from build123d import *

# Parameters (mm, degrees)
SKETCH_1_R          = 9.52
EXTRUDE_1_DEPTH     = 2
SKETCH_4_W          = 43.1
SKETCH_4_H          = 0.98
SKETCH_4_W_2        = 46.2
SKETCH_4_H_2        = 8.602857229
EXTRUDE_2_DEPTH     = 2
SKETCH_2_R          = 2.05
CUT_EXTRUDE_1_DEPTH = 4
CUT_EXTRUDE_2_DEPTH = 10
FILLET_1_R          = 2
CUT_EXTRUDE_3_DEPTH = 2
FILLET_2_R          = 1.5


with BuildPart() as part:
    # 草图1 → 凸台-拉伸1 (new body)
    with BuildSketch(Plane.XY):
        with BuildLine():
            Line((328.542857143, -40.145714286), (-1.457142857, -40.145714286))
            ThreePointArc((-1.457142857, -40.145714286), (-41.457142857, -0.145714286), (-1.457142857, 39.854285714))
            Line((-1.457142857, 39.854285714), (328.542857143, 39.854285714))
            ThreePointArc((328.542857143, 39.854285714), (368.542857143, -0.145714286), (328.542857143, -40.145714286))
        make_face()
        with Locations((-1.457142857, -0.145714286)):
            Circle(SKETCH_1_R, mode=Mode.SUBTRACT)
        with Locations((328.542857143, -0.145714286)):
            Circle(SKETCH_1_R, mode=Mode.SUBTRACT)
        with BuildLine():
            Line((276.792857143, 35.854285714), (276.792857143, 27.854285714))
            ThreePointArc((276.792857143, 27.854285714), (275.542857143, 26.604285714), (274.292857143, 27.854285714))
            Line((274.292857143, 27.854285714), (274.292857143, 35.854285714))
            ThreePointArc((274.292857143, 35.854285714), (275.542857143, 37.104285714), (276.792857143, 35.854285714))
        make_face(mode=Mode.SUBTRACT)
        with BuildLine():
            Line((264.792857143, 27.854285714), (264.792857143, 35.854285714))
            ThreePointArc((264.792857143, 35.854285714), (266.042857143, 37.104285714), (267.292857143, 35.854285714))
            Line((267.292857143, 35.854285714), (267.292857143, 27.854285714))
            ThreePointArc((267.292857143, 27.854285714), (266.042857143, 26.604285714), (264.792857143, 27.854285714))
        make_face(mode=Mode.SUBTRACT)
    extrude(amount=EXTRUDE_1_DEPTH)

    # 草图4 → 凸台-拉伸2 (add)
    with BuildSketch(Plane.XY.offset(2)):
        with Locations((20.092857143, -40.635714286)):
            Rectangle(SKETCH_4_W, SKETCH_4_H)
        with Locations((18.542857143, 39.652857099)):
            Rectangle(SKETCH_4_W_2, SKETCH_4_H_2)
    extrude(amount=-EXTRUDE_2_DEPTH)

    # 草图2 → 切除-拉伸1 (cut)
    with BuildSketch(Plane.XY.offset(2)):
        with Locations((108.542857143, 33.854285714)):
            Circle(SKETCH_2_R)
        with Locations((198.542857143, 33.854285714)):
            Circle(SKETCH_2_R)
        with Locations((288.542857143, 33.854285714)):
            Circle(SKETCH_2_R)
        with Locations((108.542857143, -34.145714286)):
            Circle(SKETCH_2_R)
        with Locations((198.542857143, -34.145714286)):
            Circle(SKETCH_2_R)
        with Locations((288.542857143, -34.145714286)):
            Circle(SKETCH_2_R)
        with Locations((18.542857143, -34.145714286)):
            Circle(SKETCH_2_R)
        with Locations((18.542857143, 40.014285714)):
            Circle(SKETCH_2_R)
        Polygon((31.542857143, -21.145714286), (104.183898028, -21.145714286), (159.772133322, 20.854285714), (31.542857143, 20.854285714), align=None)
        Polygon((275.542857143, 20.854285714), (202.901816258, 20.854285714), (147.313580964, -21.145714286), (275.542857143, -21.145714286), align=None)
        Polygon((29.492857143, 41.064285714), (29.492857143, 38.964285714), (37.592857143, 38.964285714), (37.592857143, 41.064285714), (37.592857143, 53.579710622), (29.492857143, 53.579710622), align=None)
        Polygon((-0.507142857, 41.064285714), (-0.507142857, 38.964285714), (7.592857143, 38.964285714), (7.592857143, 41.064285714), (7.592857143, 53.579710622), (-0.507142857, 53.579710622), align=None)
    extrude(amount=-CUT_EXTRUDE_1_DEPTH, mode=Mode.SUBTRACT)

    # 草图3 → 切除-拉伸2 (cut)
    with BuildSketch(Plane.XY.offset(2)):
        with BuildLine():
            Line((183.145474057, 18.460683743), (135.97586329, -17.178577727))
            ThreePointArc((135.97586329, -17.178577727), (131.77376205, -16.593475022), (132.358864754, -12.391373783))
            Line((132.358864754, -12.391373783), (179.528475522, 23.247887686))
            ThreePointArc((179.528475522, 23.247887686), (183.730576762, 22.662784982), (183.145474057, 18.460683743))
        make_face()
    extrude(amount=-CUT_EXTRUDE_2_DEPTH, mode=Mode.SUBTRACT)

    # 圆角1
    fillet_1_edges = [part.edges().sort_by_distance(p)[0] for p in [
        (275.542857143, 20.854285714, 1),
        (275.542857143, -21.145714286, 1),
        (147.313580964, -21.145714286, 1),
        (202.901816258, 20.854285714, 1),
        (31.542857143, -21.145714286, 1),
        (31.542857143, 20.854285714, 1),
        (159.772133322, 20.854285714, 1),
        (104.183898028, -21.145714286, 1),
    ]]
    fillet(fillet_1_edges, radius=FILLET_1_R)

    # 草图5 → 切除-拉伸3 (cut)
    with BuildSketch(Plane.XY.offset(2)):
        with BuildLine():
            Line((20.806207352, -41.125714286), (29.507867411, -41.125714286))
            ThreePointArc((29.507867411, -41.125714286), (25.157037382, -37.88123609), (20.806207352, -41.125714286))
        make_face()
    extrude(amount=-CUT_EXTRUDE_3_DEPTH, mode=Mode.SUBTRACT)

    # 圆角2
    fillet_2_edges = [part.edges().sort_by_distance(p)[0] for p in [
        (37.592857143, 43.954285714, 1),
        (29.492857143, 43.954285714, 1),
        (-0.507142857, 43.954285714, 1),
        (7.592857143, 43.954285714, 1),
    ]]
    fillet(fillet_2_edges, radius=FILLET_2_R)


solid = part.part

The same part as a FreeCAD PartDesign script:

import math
import FreeCAD as App
import Part
import Sketcher
Q = App.Units.Quantity


def edges_at(feature, points):
    """Names of the edges that pass closest to the given points."""
    edges = feature.Shape.Edges
    near = lambda p: min(range(len(edges)), key=lambda i: edges[i].distToShape(Part.Vertex(*p))[0])
    return sorted({f"Edge{near(p) + 1}" for p in points})

doc = App.newDocument("Part")
body = doc.addObject("PartDesign::Body", "Body")

# Sketch on XY plane
sketch1 = body.newObject("Sketcher::SketchObject", "Sketch")
sketch1.AttachmentSupport = (doc.getObject("XY_Plane"), [""])
sketch1.MapMode = "FlatFace"
sketch1.addGeometry(Part.LineSegment(App.Vector(-1.5, -40.1, 0), App.Vector(328.5, -40.1, 0)), False)
sketch1.addGeometry(Part.ArcOfCircle(Part.Circle(App.Vector(328.5, -0.1, 0), App.Vector(0, 0, 1), 40), math.radians(-90), math.radians(90)), False)
sketch1.addGeometry(Part.LineSegment(App.Vector(328.5, 39.9, 0), App.Vector(-1.5, 39.9, 0)), False)
sketch1.addGeometry(Part.ArcOfCircle(Part.Circle(App.Vector(-1.5, -0.1, 0), App.Vector(0, 0, 1), 40), math.radians(90), math.radians(270)), False)
sketch1.addGeometry(Part.Circle(App.Vector(328.5, -0.1, 0), App.Vector(0, 0, 1), 9.5), False)
sketch1.addGeometry(Part.Circle(App.Vector(-1.5, -0.1, 0), App.Vector(0, 0, 1), 9.5), False)
sketch1.addGeometry(Part.LineSegment(App.Vector(276.8, 35.9, 0), App.Vector(276.8, 27.9, 0)), False)
sketch1.addGeometry(Part.ArcOfCircle(Part.Circle(App.Vector(275.5, 27.9, 0), App.Vector(0, 0, 1), 1.2), math.radians(180), math.radians(360)), False)
sketch1.addGeometry(Part.LineSegment(App.Vector(274.3, 27.9, 0), App.Vector(274.3, 35.9, 0)), False)
sketch1.addGeometry(Part.ArcOfCircle(Part.Circle(App.Vector(275.5, 35.9, 0), App.Vector(0, 0, 1), 1.2), math.radians(0), math.radians(180)), False)
sketch1.addGeometry(Part.LineSegment(App.Vector(264.8, 27.9, 0), App.Vector(264.8, 35.9, 0)), False)
sketch1.addGeometry(Part.ArcOfCircle(Part.Circle(App.Vector(266, 35.9, 0), App.Vector(0, 0, 1), 1.2), math.radians(0), math.radians(180)), False)
sketch1.addGeometry(Part.LineSegment(App.Vector(267.3, 35.9, 0), App.Vector(267.3, 27.9, 0)), False)
sketch1.addGeometry(Part.ArcOfCircle(Part.Circle(App.Vector(266, 27.9, 0), App.Vector(0, 0, 1), 1.2), math.radians(180), math.radians(360)), False)
sketch1.addConstraint(Sketcher.Constraint("Tangent", 0, 2, 1, 1))
sketch1.addConstraint(Sketcher.Constraint("Tangent", 1, 2, 2, 1))
sketch1.addConstraint(Sketcher.Constraint("Tangent", 2, 2, 3, 1))
sketch1.addConstraint(Sketcher.Constraint("Tangent", 3, 2, 0, 1))
sketch1.addConstraint(Sketcher.Constraint("Tangent", 6, 2, 7, 2))
sketch1.addConstraint(Sketcher.Constraint("Tangent", 7, 1, 8, 1))
sketch1.addConstraint(Sketcher.Constraint("Tangent", 8, 2, 9, 2))
sketch1.addConstraint(Sketcher.Constraint("Tangent", 9, 1, 6, 1))
sketch1.addConstraint(Sketcher.Constraint("Tangent", 10, 2, 11, 2))
sketch1.addConstraint(Sketcher.Constraint("Tangent", 11, 1, 12, 1))
sketch1.addConstraint(Sketcher.Constraint("Tangent", 12, 2, 13, 2))
sketch1.addConstraint(Sketcher.Constraint("Tangent", 13, 1, 10, 1))
sketch1.addConstraint(Sketcher.Constraint("Horizontal", 0))
sketch1.addConstraint(Sketcher.Constraint("Horizontal", 2))
sketch1.addConstraint(Sketcher.Constraint("Vertical", 6))
sketch1.addConstraint(Sketcher.Constraint("Vertical", 8))
sketch1.addConstraint(Sketcher.Constraint("Vertical", 10))
sketch1.addConstraint(Sketcher.Constraint("Vertical", 12))
sketch1.addConstraint(Sketcher.Constraint("Coincident", 4, 3, 1, 3))
sketch1.addConstraint(Sketcher.Constraint("Coincident", 5, 3, 3, 3))
sketch1.addConstraint(Sketcher.Constraint("Equal", 4, 5))
sketch1.addConstraint(Sketcher.Constraint("Equal", 9, 11))
sketch1.addConstraint(Sketcher.Constraint("Horizontal", 9, 3, 11, 3))
sketch1.addConstraint(Sketcher.Constraint("Horizontal", 7, 3, 13, 3))
sketch1.addConstraint(Sketcher.Constraint("Radius", 1, Q("40 mm")))
sketch1.addConstraint(Sketcher.Constraint("Diameter", 4, Q("19.04 mm")))
sketch1.addConstraint(Sketcher.Constraint("DistanceX", 0, 1, 0, 2, Q("330 mm")))
sketch1.addConstraint(Sketcher.Constraint("DistanceY", 6, 2, 6, 1, Q("8 mm")))
sketch1.addConstraint(Sketcher.Constraint("Radius", 7, Q("1.25 mm")))
sketch1.addConstraint(Sketcher.Constraint("DistanceX", 7, 3, 1, 3, Q("53 mm")))
sketch1.addConstraint(Sketcher.Constraint("DistanceY", 1, 3, 7, 3, Q("28 mm")))
sketch1.addConstraint(Sketcher.Constraint("DistanceX", 10, 2, 9, 1, Q("12 mm")))
sketch1.addConstraint(Sketcher.Constraint("DistanceX", -1, 1, 1, 3, Q("328.542857 mm")))
sketch1.addConstraint(Sketcher.Constraint("DistanceY", 1, 3, -1, 1, Q("0.145714 mm")))
pad1 = body.newObject("PartDesign::Pad", "Pad")
pad1.Profile = sketch1
pad1.Length = 2

# Sketch on XY plane
sketch2 = body.newObject("Sketcher::SketchObject", "Sketch001")
sketch2.AttachmentSupport = (doc.getObject("XY_Plane"), [""])
sketch2.MapMode = "FlatFace"
sketch2.AttachmentOffset = App.Placement(App.Vector(0, 0, 2), App.Rotation())
sketch2.addGeometry(Part.LineSegment(App.Vector(-1.5, -40.1, 0), App.Vector(-1.5, -41.1, 0)), False)
sketch2.addGeometry(Part.LineSegment(App.Vector(-1.5, -41.1, 0), App.Vector(41.6, -41.1, 0)), False)
sketch2.addGeometry(Part.LineSegment(App.Vector(41.6, -41.1, 0), App.Vector(41.6, -40.1, 0)), False)
sketch2.addGeometry(Part.LineSegment(App.Vector(41.6, -40.1, 0), App.Vector(-1.5, -40.1, 0)), False)
sketch2.addGeometry(Part.LineSegment(App.Vector(-4.6, 44, 0), App.Vector(-4.6, 35.4, 0)), False)
sketch2.addGeometry(Part.LineSegment(App.Vector(-4.6, 35.4, 0), App.Vector(41.6, 35.4, 0)), False)
sketch2.addGeometry(Part.LineSegment(App.Vector(41.6, 35.4, 0), App.Vector(41.6, 44, 0)), False)
sketch2.addGeometry(Part.LineSegment(App.Vector(41.6, 44, 0), App.Vector(-4.6, 44, 0)), False)
sketch2.addConstraint(Sketcher.Constraint("Coincident", 0, 2, 1, 1))
sketch2.addConstraint(Sketcher.Constraint("Coincident", 1, 2, 2, 1))
sketch2.addConstraint(Sketcher.Constraint("Coincident", 2, 2, 3, 1))
sketch2.addConstraint(Sketcher.Constraint("Coincident", 3, 2, 0, 1))
sketch2.addConstraint(Sketcher.Constraint("Coincident", 4, 2, 5, 1))
sketch2.addConstraint(Sketcher.Constraint("Coincident", 5, 2, 6, 1))
sketch2.addConstraint(Sketcher.Constraint("Coincident", 6, 2, 7, 1))
sketch2.addConstraint(Sketcher.Constraint("Coincident", 7, 2, 4, 1))
sketch2.addConstraint(Sketcher.Constraint("Vertical", 0))
sketch2.addConstraint(Sketcher.Constraint("Horizontal", 1))
sketch2.addConstraint(Sketcher.Constraint("Vertical", 2))
sketch2.addConstraint(Sketcher.Constraint("Horizontal", 3))
sketch2.addConstraint(Sketcher.Constraint("Vertical", 4))
sketch2.addConstraint(Sketcher.Constraint("Horizontal", 5))
sketch2.addConstraint(Sketcher.Constraint("Vertical", 6))
sketch2.addConstraint(Sketcher.Constraint("Horizontal", 7))
sketch2.addConstraint(Sketcher.Constraint("Vertical", 2, 2, 5, 2))
sketch2.addConstraint(Sketcher.Constraint("DistanceX", 1, 1, 1, 2, Q("43.1 mm")))
sketch2.addConstraint(Sketcher.Constraint("DistanceX", 5, 1, 5, 2, Q("46.2 mm")))
sketch2.addConstraint(Sketcher.Constraint("DistanceY", 0, 2, 0, 1, Q("0.98 mm")))
sketch2.addConstraint(Sketcher.Constraint("DistanceY", 2, 2, 6, 2, Q("84.1 mm")))
sketch2.addConstraint(Sketcher.Constraint("DistanceY", 4, 2, 4, 1, Q("8.602857 mm")))
sketch2.addConstraint(Sketcher.Constraint("DistanceY", -1, 1, 4, 2, Q("35.351428 mm")))
sketch2.addConstraint(Sketcher.Constraint("DistanceX", 0, 2, -1, 1, Q("1.457143 mm")))
pad2 = body.newObject("PartDesign::Pad", "Pad001")
pad2.Profile = sketch2
pad2.Length = 2
pad2.Reversed = True

# Sketch on XY plane
sketch3 = body.newObject("Sketcher::SketchObject", "Sketch002")
sketch3.AttachmentSupport = (doc.getObject("XY_Plane"), [""])
sketch3.MapMode = "FlatFace"
sketch3.AttachmentOffset = App.Placement(App.Vector(0, 0, 2), App.Rotation())
sketch3.addGeometry(Part.Circle(App.Vector(108.5, 33.9, 0), App.Vector(0, 0, 1), 2), False)
sketch3.addGeometry(Part.Circle(App.Vector(198.5, 33.9, 0), App.Vector(0, 0, 1), 2), False)
sketch3.addGeometry(Part.Circle(App.Vector(288.5, 33.9, 0), App.Vector(0, 0, 1), 2), False)
sketch3.addGeometry(Part.Circle(App.Vector(108.5, -34.1, 0), App.Vector(0, 0, 1), 2), False)
sketch3.addGeometry(Part.Circle(App.Vector(198.5, -34.1, 0), App.Vector(0, 0, 1), 2), False)
sketch3.addGeometry(Part.Circle(App.Vector(288.5, -34.1, 0), App.Vector(0, 0, 1), 2), False)
sketch3.addGeometry(Part.Circle(App.Vector(18.5, -34.1, 0), App.Vector(0, 0, 1), 2), False)
sketch3.addGeometry(Part.Circle(App.Vector(18.5, 40, 0), App.Vector(0, 0, 1), 2), False)
sketch3.addGeometry(Part.LineSegment(App.Vector(31.5, -21.1, 0), App.Vector(104.2, -21.1, 0)), False)
sketch3.addGeometry(Part.LineSegment(App.Vector(104.2, -21.1, 0), App.Vector(159.8, 20.9, 0)), False)
sketch3.addGeometry(Part.LineSegment(App.Vector(159.8, 20.9, 0), App.Vector(31.5, 20.9, 0)), False)
sketch3.addGeometry(Part.LineSegment(App.Vector(31.5, 20.9, 0), App.Vector(31.5, -21.1, 0)), False)
sketch3.addGeometry(Part.LineSegment(App.Vector(275.5, 20.9, 0), App.Vector(202.9, 20.9, 0)), False)
sketch3.addGeometry(Part.LineSegment(App.Vector(202.9, 20.9, 0), App.Vector(147.3, -21.1, 0)), False)
sketch3.addGeometry(Part.LineSegment(App.Vector(147.3, -21.1, 0), App.Vector(275.5, -21.1, 0)), False)
sketch3.addGeometry(Part.LineSegment(App.Vector(275.5, -21.1, 0), App.Vector(275.5, 20.9, 0)), False)
sketch3.addGeometry(Part.LineSegment(App.Vector(29.5, 39, 0), App.Vector(37.6, 39, 0)), False)
sketch3.addGeometry(Part.LineSegment(App.Vector(37.6, 39, 0), App.Vector(37.6, 53.6, 0)), False)
sketch3.addGeometry(Part.LineSegment(App.Vector(37.6, 53.6, 0), App.Vector(29.5, 53.6, 0)), False)
sketch3.addGeometry(Part.LineSegment(App.Vector(29.5, 53.6, 0), App.Vector(29.5, 39, 0)), False)
sketch3.addGeometry(Part.LineSegment(App.Vector(-0.5, 39, 0), App.Vector(7.6, 39, 0)), False)
sketch3.addGeometry(Part.LineSegment(App.Vector(7.6, 39, 0), App.Vector(7.6, 53.6, 0)), False)
sketch3.addGeometry(Part.LineSegment(App.Vector(7.6, 53.6, 0), App.Vector(-0.5, 53.6, 0)), False)
sketch3.addGeometry(Part.LineSegment(App.Vector(-0.5, 53.6, 0), App.Vector(-0.5, 39, 0)), False)
sketch3.addConstraint(Sketcher.Constraint("Coincident", 8, 2, 9, 1))
sketch3.addConstraint(Sketcher.Constraint("Coincident", 9, 2, 10, 1))
sketch3.addConstraint(Sketcher.Constraint("Coincident", 10, 2, 11, 1))
sketch3.addConstraint(Sketcher.Constraint("Coincident", 11, 2, 8, 1))
sketch3.addConstraint(Sketcher.Constraint("Coincident", 12, 2, 13, 1))
sketch3.addConstraint(Sketcher.Constraint("Coincident", 13, 2, 14, 1))
sketch3.addConstraint(Sketcher.Constraint("Coincident", 14, 2, 15, 1))
sketch3.addConstraint(Sketcher.Constraint("Coincident", 15, 2, 12, 1))
sketch3.addConstraint(Sketcher.Constraint("Coincident", 16, 2, 17, 1))
sketch3.addConstraint(Sketcher.Constraint("Coincident", 17, 2, 18, 1))
sketch3.addConstraint(Sketcher.Constraint("Coincident", 18, 2, 19, 1))
sketch3.addConstraint(Sketcher.Constraint("Coincident", 19, 2, 16, 1))
sketch3.addConstraint(Sketcher.Constraint("Coincident", 20, 2, 21, 1))
sketch3.addConstraint(Sketcher.Constraint("Coincident", 21, 2, 22, 1))
sketch3.addConstraint(Sketcher.Constraint("Coincident", 22, 2, 23, 1))
sketch3.addConstraint(Sketcher.Constraint("Coincident", 23, 2, 20, 1))
sketch3.addConstraint(Sketcher.Constraint("Horizontal", 8))
sketch3.addConstraint(Sketcher.Constraint("Horizontal", 10))
sketch3.addConstraint(Sketcher.Constraint("Vertical", 11))
sketch3.addConstraint(Sketcher.Constraint("Horizontal", 12))
sketch3.addConstraint(Sketcher.Constraint("Horizontal", 14))
sketch3.addConstraint(Sketcher.Constraint("Vertical", 15))
sketch3.addConstraint(Sketcher.Constraint("Horizontal", 16))
sketch3.addConstraint(Sketcher.Constraint("Vertical", 17))
sketch3.addConstraint(Sketcher.Constraint("Horizontal", 18))
sketch3.addConstraint(Sketcher.Constraint("Vertical", 19))
sketch3.addConstraint(Sketcher.Constraint("Horizontal", 20))
sketch3.addConstraint(Sketcher.Constraint("Vertical", 21))
sketch3.addConstraint(Sketcher.Constraint("Horizontal", 22))
sketch3.addConstraint(Sketcher.Constraint("Vertical", 23))
sketch3.addConstraint(Sketcher.Constraint("Equal", 0, 1))
sketch3.addConstraint(Sketcher.Constraint("Equal", 1, 2))
sketch3.addConstraint(Sketcher.Constraint("Equal", 2, 3))
sketch3.addConstraint(Sketcher.Constraint("Equal", 3, 4))
sketch3.addConstraint(Sketcher.Constraint("Equal", 4, 5))
sketch3.addConstraint(Sketcher.Constraint("Equal", 5, 6))
sketch3.addConstraint(Sketcher.Constraint("Equal", 6, 7))
sketch3.addConstraint(Sketcher.Constraint("Parallel", 9, 13))
sketch3.addConstraint(Sketcher.Constraint("Horizontal", 0, 3, 1, 3))
sketch3.addConstraint(Sketcher.Constraint("Horizontal", 1, 3, 2, 3))
sketch3.addConstraint(Sketcher.Constraint("Horizontal", 3, 3, 4, 3))
sketch3.addConstraint(Sketcher.Constraint("Horizontal", 4, 3, 5, 3))
sketch3.addConstraint(Sketcher.Constraint("Horizontal", 5, 3, 6, 3))
sketch3.addConstraint(Sketcher.Constraint("Horizontal", 10, 2, 12, 2))
sketch3.addConstraint(Sketcher.Constraint("Horizontal", 11, 2, 13, 2))
sketch3.addConstraint(Sketcher.Constraint("Horizontal", 19, 2, 20, 2))
sketch3.addConstraint(Sketcher.Constraint("Horizontal", 18, 2, 21, 2))
sketch3.addConstraint(Sketcher.Constraint("Vertical", 0, 3, 3, 3))
sketch3.addConstraint(Sketcher.Constraint("Vertical", 1, 3, 4, 3))
sketch3.addConstraint(Sketcher.Constraint("Vertical", 2, 3, 5, 3))
sketch3.addConstraint(Sketcher.Constraint("Vertical", 6, 3, 7, 3))
sketch3.addConstraint(Sketcher.Constraint("Equal", 8, 12))
sketch3.addConstraint(Sketcher.Constraint("Equal", 18, 20))
sketch3.addConstraint(Sketcher.Constraint("Diameter", 0, Q("4.1 mm")))
sketch3.addConstraint(Sketcher.Constraint("DistanceY", 11, 2, 11, 1, Q("42 mm")))
sketch3.addConstraint(Sketcher.Constraint("DistanceX", 16, 1, 16, 2, Q("8.1 mm")))
sketch3.addConstraint(Sketcher.Constraint("DistanceX", 0, 3, 1, 3, Q("90 mm")))
sketch3.addConstraint(Sketcher.Constraint("DistanceX", 1, 3, 2, 3, Q("90 mm")))
sketch3.addConstraint(Sketcher.Constraint("DistanceY", 3, 3, 0, 3, Q("68 mm")))
sketch3.addConstraint(Sketcher.Constraint("DistanceX", 6, 3, 3, 3, Q("90 mm")))
sketch3.addConstraint(Sketcher.Constraint("DistanceY", 3, 3, 8, 2, Q("13 mm")))
sketch3.addConstraint(Sketcher.Constraint("DistanceX", 7, 3, 10, 2, Q("13 mm")))
sketch3.addConstraint(Sketcher.Constraint("DistanceX", 14, 2, 5, 3, Q("13 mm")))
sketch3.addConstraint(Sketcher.Constraint("DistanceX", 20, 2, 16, 2, Q("30 mm")))
sketch3.addConstraint(Sketcher.Constraint("DistanceY", 6, 3, 7, 3, Q("74.16 mm")))
sketch3.addConstraint(Sketcher.Constraint("DistanceX", 7, 3, 16, 2, Q("19.05 mm")))
sketch3.addConstraint(Sketcher.Constraint("DistanceY", 16, 2, 7, 3, Q("1.05 mm")))
sketch3.addConstraint(Sketcher.Constraint("DistanceX", 8, 1, 8, 2, Q("72.641041 mm")))
sketch3.addConstraint(Sketcher.Constraint("DistanceX", -1, 1, 8, 2, Q("104.183898 mm")))
sketch3.addConstraint(Sketcher.Constraint("DistanceX", 10, 2, 10, 1, Q("128.229276 mm")))
sketch3.addConstraint(Sketcher.Constraint("DistanceY", 17, 1, 17, 2, Q("14.615425 mm")))
sketch3.addConstraint(Sketcher.Constraint("DistanceY", -1, 1, 17, 2, Q("53.579711 mm")))
pocket1 = body.newObject("PartDesign::Pocket", "Pocket")
pocket1.Profile = sketch3
pocket1.Length = 4

# Sketch on XY plane
sketch4 = body.newObject("Sketcher::SketchObject", "Sketch003")
sketch4.AttachmentSupport = (doc.getObject("XY_Plane"), [""])
sketch4.MapMode = "FlatFace"
sketch4.AttachmentOffset = App.Placement(App.Vector(0, 0, 2), App.Rotation())
sketch4.addGeometry(Part.LineSegment(App.Vector(136, -17.2, 0), App.Vector(183.1, 18.5, 0)), False)
sketch4.addGeometry(Part.ArcOfCircle(Part.Circle(App.Vector(181.3, 20.9, 0), App.Vector(0, 0, 1), 3), math.radians(-53), math.radians(127)), False)
sketch4.addGeometry(Part.LineSegment(App.Vector(179.5, 23.2, 0), App.Vector(132.4, -12.4, 0)), False)
sketch4.addGeometry(Part.ArcOfCircle(Part.Circle(App.Vector(134.2, -14.8, 0), App.Vector(0, 0, 1), 3), math.radians(127), math.radians(307)), False)
sketch4.addConstraint(Sketcher.Constraint("Tangent", 0, 2, 1, 1))
sketch4.addConstraint(Sketcher.Constraint("Tangent", 1, 2, 2, 1))
sketch4.addConstraint(Sketcher.Constraint("Tangent", 2, 2, 3, 1))
sketch4.addConstraint(Sketcher.Constraint("Tangent", 3, 2, 0, 1))
sketch4.addConstraint(Sketcher.Constraint("Equal", 1, 3))
sketch4.addConstraint(Sketcher.Constraint("Radius", 1, Q("3 mm")))
sketch4.addConstraint(Sketcher.Constraint("DistanceX", 1, 2, 0, 2, Q("3.616999 mm")))
sketch4.addConstraint(Sketcher.Constraint("DistanceX", 3, 3, 1, 3, Q("47.169611 mm")))
sketch4.addConstraint(Sketcher.Constraint("DistanceX", -1, 1, 1, 3, Q("181.336975 mm")))
sketch4.addConstraint(Sketcher.Constraint("DistanceY", -1, 1, 1, 3, Q("20.854286 mm")))
pocket2 = body.newObject("PartDesign::Pocket", "Pocket001")
pocket2.Profile = sketch4
pocket2.Length = 10
doc.recompute()

fillet = body.newObject("PartDesign::Fillet", "Fillet")
fillet.Base = (pocket2, edges_at(pocket2, [
    (275.543, 20.854, 1),
    (275.543, -21.146, 1),
    (147.314, -21.146, 1),
    (202.902, 20.854, 1),
    (31.543, -21.146, 1),
    (31.543, 20.854, 1),
    (159.772, 20.854, 1),
    (104.184, -21.146, 1),
]))
fillet.Radius = 2

# Sketch on XY plane
sketch5 = body.newObject("Sketcher::SketchObject", "Sketch004")
sketch5.AttachmentSupport = (doc.getObject("XY_Plane"), [""])
sketch5.MapMode = "FlatFace"
sketch5.AttachmentOffset = App.Placement(App.Vector(0, 0, 2), App.Rotation())
sketch5.addGeometry(Part.LineSegment(App.Vector(20.8, -41.1, 0), App.Vector(29.5, -41.1, 0)), False)
sketch5.addGeometry(Part.ArcOfCircle(Part.Circle(App.Vector(25.2, -42.4, 0), App.Vector(0, 0, 1), 4.5), math.radians(17), math.radians(163)), False)
sketch5.addConstraint(Sketcher.Constraint("Coincident", 0, 1, 1, 2))
sketch5.addConstraint(Sketcher.Constraint("Coincident", 1, 1, 0, 2))
sketch5.addConstraint(Sketcher.Constraint("Horizontal", 0))
sketch5.addConstraint(Sketcher.Constraint("Radius", 1, Q("4.53946 mm")))
sketch5.addConstraint(Sketcher.Constraint("DistanceX", 0, 1, 0, 2, Q("8.70166 mm")))
sketch5.addConstraint(Sketcher.Constraint("DistanceX", -1, 1, 1, 3, Q("25.157037 mm")))
sketch5.addConstraint(Sketcher.Constraint("DistanceY", 1, 3, -1, 1, Q("42.420697 mm")))
pocket3 = body.newObject("PartDesign::Pocket", "Pocket002")
pocket3.Profile = sketch5
pocket3.Length = 2
doc.recompute()

fillet2 = body.newObject("PartDesign::Fillet", "Fillet001")
fillet2.Base = (pocket3, edges_at(pocket3, [
    (37.593, 43.954, 1),
    (29.493, 43.954, 1),
    (-0.507, 43.954, 1),
    (7.593, 43.954, 1),
]))
fillet2.Radius = 1.5

doc.recompute()
